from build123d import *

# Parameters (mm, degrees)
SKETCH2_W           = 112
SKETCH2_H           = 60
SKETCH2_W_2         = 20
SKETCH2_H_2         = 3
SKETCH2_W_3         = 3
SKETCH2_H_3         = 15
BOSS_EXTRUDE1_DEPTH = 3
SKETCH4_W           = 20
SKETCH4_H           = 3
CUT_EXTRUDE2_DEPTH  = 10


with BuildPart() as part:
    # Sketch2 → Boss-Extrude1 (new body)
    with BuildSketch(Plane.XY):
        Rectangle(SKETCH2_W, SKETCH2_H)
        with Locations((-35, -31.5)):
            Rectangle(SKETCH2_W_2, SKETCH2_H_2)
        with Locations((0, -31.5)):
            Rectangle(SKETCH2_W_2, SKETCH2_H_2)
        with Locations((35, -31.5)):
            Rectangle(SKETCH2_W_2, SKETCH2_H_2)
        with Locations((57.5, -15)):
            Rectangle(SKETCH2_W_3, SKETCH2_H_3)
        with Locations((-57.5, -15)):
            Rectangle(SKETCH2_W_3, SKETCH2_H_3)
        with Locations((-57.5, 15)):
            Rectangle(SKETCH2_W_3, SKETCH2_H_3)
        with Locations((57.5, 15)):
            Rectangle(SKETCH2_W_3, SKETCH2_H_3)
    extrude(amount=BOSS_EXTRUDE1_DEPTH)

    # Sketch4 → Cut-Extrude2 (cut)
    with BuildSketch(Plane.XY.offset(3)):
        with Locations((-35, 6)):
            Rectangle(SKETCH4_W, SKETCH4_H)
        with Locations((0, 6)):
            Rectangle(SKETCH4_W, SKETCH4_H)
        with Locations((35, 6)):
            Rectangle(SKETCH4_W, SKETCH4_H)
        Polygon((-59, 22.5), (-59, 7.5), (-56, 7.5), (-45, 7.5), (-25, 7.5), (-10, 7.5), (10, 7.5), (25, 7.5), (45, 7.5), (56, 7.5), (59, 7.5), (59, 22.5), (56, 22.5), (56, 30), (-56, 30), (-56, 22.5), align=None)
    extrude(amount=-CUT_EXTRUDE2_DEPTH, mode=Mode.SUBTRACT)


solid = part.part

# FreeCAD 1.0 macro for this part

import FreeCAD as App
import Part
import Sketcher


def add_polygon(sketch, points):
    """Adds a closed chain of lines whose ends are joined by coincident constraints."""
    first, n = sketch.GeometryCount, len(points)
    for a, b in zip(points, points[1:] + points[:1]):
        sketch.addGeometry(Part.LineSegment(App.Vector(*a, 0), App.Vector(*b, 0)), False)
    for i in range(n):
        sketch.addConstraint(Sketcher.Constraint("Coincident", first + i, 2, first + (i + 1) % n, 1))

doc = App.newDocument("Part")
body = doc.addObject("PartDesign::Body", "Body")

# Sketch on XY plane
sketch1 = body.newObject("Sketcher::SketchObject", "Sketch")
sketch1.AttachmentSupport = (doc.getObject("XY_Plane"), [""])
sketch1.MapMode = "FlatFace"
add_polygon(sketch1, [(-56, -22.5), (-56, -30), (-45, -30), (-45, -33), (-25, -33), (-25, -30), (-10, -30), (-10, -33), (10, -33), (10, -30), (25, -30), (25, -33), (45, -33), (45, -30), (56, -30), (56, -22.5), (59, -22.5), (59, -7.5), (56, -7.5), (56, 7.5), (59, 7.5), (59, 22.5), (56, 22.5), (56, 30), (-56, 30), (-56, 22.5), (-59, 22.5), (-59, 7.5), (-56, 7.5), (-56, -7.5), (-59, -7.5), (-59, -22.5)])  # lines 0-31
sketch1.addConstraint([
    Sketcher.Constraint("Vertical", 0),
    Sketcher.Constraint("Horizontal", 1),
    Sketcher.Constraint("Vertical", 2),
    Sketcher.Constraint("Horizontal", 3),
    Sketcher.Constraint("Vertical", 4),
    Sketcher.Constraint("Horizontal", 5),
    Sketcher.Constraint("Vertical", 6),
    Sketcher.Constraint("Horizontal", 7),
    Sketcher.Constraint("Vertical", 8),
    Sketcher.Constraint("Horizontal", 9),
    Sketcher.Constraint("Vertical", 10),
    Sketcher.Constraint("Horizontal", 11),
    Sketcher.Constraint("Vertical", 12),
    Sketcher.Constraint("Horizontal", 13),
    Sketcher.Constraint("Vertical", 14),
    Sketcher.Constraint("Horizontal", 15),
    Sketcher.Constraint("Vertical", 16),
    Sketcher.Constraint("Horizontal", 17),
    Sketcher.Constraint("Vertical", 18),
    Sketcher.Constraint("Horizontal", 19),
    Sketcher.Constraint("Vertical", 20),
    Sketcher.Constraint("Horizontal", 21),
    Sketcher.Constraint("Vertical", 22),
    Sketcher.Constraint("Horizontal", 23),
    Sketcher.Constraint("Vertical", 24),
    Sketcher.Constraint("Horizontal", 25),
    Sketcher.Constraint("Vertical", 26),
    Sketcher.Constraint("Horizontal", 27),
    Sketcher.Constraint("Vertical", 28),
    Sketcher.Constraint("Horizontal", 29),
    Sketcher.Constraint("Vertical", 30),
    Sketcher.Constraint("Horizontal", 31),
    Sketcher.Constraint("Symmetric", 0, 2, 22, 2, -1, 1),
    Sketcher.Constraint("Symmetric", 13, 2, 23, 2, -1, 1),
    Sketcher.Constraint("Symmetric", 15, 2, 25, 2, -1, 1),
    Sketcher.Constraint("Symmetric", 17, 2, 27, 2, -1, 1),
    Sketcher.Constraint("Symmetric", 19, 2, 29, 2, -1, 1),
    Sketcher.Constraint("Symmetric", 5, 2, 8, 2, -2),
    Sketcher.Constraint("Symmetric", 3, 2, 10, 2, -2),
    Sketcher.Constraint("Symmetric", 21, 2, 24, 2, -2),
    Sketcher.Constraint("Symmetric", 19, 2, 26, 2, -2),
    Sketcher.Constraint("Horizontal", 1, 2, 4, 2),
    Sketcher.Constraint("Horizontal", 3, 2, 6, 2),
    Sketcher.Constraint("Horizontal", 15, 2, 30, 2),
    Sketcher.Constraint("Vertical", 14, 2, 17, 2),
    Sketcher.Constraint("Equal", 3, 7),
    Sketcher.Constraint("Equal", 7, 11),
    Sketcher.Constraint("Equal", 31, 2),
    Sketcher.Constraint("Equal", 9, 16),
    Sketcher.Constraint("Equal", 16, 18),
    Sketcher.Constraint("DistanceX", 1, 1, 1, 2, 11.0),
    Sketcher.Constraint("DistanceX", 3, 1, 3, 2, 20.0),
    Sketcher.Constraint("DistanceX", 5, 1, 5, 2, 15.0),
    Sketcher.Constraint("DistanceX", 15, 1, 15, 2, 3.0),
    Sketcher.Constraint("DistanceY", 0, 2, 0, 1, 7.5),
])
pad1 = body.newObject("PartDesign::Pad", "Pad")
pad1.Profile = sketch1
pad1.Length = 3

# Sketch on XY plane
sketch2 = body.newObject("Sketcher::SketchObject", "Sketch001")
sketch2.AttachmentSupport = (doc.getObject("XY_Plane"), [""])
sketch2.MapMode = "FlatFace"
sketch2.AttachmentOffset = App.Placement(App.Vector(0, 0, 3), App.Rotation())
add_polygon(sketch2, [(-45, 7.5), (-45, 4.5), (-25, 4.5), (-25, 7.5), (-10, 7.5), (-10, 4.5), (10, 4.5), (10, 7.5), (25, 7.5), (25, 4.5), (45, 4.5), (45, 7.5), (59, 7.5), (59, 22.5), (56, 22.5), (56, 30), (-56, 30), (-56, 22.5), (-59, 22.5), (-59, 7.5)])  # lines 0-19
sketch2.addConstraint([
    Sketcher.Constraint("Vertical", 0),
    Sketcher.Constraint("Horizontal", 1),
    Sketcher.Constraint("Vertical", 2),
    Sketcher.Constraint("Horizontal", 3),
    Sketcher.Constraint("Vertical", 4),
    Sketcher.Constraint("Horizontal", 5),
    Sketcher.Constraint("Vertical", 6),
    Sketcher.Constraint("Horizontal", 7),
    Sketcher.Constraint("Vertical", 8),
    Sketcher.Constraint("Horizontal", 9),
    Sketcher.Constraint("Vertical", 10),
    Sketcher.Constraint("Horizontal", 11),
    Sketcher.Constraint("Vertical", 12),
    Sketcher.Constraint("Horizontal", 13),
    Sketcher.Constraint("Vertical", 14),
    Sketcher.Constraint("Horizontal", 15),
    Sketcher.Constraint("Vertical", 16),
    Sketcher.Constraint("Horizontal", 17),
    Sketcher.Constraint("Vertical", 18),
    Sketcher.Constraint("Horizontal", 19),
    Sketcher.Constraint("Symmetric", 3, 2, 6, 2, -2),
    Sketcher.Constraint("Symmetric", 1, 2, 8, 2, -2),
    Sketcher.Constraint("Symmetric", 13, 2, 16, 2, -2),
    Sketcher.Constraint("Symmetric", 11, 2, 18, 2, -2),
    Sketcher.Constraint("Horizontal", 1, 2, 4, 2),
    Sketcher.Constraint("Horizontal", 7, 2, 10, 2),
    Sketcher.Constraint("Equal", 1, 5),
    Sketcher.Constraint("Equal", 5, 9),
    Sketcher.Constraint("Equal", 17, 0),
    Sketcher.Constraint("Equal", 7, 12),
    Sketcher.Constraint("DistanceX", 1, 1, 1, 2, 20.0),
    Sketcher.Constraint("DistanceX", 3, 1, 3, 2, 15.0),
    Sketcher.Constraint("DistanceX", 11, 1, 11, 2, 14.0),
    Sketcher.Constraint("DistanceX", 13, 2, 13, 1, 3.0),
    Sketcher.Constraint("DistanceY", 14, 1, 14, 2, 7.5),
    Sketcher.Constraint("DistanceY", -1, 1, 14, 2, 30.0),
])
pocket1 = body.newObject("PartDesign::Pocket", "Pocket")
pocket1.Profile = sketch2
pocket1.Length = 10

doc.recompute()
